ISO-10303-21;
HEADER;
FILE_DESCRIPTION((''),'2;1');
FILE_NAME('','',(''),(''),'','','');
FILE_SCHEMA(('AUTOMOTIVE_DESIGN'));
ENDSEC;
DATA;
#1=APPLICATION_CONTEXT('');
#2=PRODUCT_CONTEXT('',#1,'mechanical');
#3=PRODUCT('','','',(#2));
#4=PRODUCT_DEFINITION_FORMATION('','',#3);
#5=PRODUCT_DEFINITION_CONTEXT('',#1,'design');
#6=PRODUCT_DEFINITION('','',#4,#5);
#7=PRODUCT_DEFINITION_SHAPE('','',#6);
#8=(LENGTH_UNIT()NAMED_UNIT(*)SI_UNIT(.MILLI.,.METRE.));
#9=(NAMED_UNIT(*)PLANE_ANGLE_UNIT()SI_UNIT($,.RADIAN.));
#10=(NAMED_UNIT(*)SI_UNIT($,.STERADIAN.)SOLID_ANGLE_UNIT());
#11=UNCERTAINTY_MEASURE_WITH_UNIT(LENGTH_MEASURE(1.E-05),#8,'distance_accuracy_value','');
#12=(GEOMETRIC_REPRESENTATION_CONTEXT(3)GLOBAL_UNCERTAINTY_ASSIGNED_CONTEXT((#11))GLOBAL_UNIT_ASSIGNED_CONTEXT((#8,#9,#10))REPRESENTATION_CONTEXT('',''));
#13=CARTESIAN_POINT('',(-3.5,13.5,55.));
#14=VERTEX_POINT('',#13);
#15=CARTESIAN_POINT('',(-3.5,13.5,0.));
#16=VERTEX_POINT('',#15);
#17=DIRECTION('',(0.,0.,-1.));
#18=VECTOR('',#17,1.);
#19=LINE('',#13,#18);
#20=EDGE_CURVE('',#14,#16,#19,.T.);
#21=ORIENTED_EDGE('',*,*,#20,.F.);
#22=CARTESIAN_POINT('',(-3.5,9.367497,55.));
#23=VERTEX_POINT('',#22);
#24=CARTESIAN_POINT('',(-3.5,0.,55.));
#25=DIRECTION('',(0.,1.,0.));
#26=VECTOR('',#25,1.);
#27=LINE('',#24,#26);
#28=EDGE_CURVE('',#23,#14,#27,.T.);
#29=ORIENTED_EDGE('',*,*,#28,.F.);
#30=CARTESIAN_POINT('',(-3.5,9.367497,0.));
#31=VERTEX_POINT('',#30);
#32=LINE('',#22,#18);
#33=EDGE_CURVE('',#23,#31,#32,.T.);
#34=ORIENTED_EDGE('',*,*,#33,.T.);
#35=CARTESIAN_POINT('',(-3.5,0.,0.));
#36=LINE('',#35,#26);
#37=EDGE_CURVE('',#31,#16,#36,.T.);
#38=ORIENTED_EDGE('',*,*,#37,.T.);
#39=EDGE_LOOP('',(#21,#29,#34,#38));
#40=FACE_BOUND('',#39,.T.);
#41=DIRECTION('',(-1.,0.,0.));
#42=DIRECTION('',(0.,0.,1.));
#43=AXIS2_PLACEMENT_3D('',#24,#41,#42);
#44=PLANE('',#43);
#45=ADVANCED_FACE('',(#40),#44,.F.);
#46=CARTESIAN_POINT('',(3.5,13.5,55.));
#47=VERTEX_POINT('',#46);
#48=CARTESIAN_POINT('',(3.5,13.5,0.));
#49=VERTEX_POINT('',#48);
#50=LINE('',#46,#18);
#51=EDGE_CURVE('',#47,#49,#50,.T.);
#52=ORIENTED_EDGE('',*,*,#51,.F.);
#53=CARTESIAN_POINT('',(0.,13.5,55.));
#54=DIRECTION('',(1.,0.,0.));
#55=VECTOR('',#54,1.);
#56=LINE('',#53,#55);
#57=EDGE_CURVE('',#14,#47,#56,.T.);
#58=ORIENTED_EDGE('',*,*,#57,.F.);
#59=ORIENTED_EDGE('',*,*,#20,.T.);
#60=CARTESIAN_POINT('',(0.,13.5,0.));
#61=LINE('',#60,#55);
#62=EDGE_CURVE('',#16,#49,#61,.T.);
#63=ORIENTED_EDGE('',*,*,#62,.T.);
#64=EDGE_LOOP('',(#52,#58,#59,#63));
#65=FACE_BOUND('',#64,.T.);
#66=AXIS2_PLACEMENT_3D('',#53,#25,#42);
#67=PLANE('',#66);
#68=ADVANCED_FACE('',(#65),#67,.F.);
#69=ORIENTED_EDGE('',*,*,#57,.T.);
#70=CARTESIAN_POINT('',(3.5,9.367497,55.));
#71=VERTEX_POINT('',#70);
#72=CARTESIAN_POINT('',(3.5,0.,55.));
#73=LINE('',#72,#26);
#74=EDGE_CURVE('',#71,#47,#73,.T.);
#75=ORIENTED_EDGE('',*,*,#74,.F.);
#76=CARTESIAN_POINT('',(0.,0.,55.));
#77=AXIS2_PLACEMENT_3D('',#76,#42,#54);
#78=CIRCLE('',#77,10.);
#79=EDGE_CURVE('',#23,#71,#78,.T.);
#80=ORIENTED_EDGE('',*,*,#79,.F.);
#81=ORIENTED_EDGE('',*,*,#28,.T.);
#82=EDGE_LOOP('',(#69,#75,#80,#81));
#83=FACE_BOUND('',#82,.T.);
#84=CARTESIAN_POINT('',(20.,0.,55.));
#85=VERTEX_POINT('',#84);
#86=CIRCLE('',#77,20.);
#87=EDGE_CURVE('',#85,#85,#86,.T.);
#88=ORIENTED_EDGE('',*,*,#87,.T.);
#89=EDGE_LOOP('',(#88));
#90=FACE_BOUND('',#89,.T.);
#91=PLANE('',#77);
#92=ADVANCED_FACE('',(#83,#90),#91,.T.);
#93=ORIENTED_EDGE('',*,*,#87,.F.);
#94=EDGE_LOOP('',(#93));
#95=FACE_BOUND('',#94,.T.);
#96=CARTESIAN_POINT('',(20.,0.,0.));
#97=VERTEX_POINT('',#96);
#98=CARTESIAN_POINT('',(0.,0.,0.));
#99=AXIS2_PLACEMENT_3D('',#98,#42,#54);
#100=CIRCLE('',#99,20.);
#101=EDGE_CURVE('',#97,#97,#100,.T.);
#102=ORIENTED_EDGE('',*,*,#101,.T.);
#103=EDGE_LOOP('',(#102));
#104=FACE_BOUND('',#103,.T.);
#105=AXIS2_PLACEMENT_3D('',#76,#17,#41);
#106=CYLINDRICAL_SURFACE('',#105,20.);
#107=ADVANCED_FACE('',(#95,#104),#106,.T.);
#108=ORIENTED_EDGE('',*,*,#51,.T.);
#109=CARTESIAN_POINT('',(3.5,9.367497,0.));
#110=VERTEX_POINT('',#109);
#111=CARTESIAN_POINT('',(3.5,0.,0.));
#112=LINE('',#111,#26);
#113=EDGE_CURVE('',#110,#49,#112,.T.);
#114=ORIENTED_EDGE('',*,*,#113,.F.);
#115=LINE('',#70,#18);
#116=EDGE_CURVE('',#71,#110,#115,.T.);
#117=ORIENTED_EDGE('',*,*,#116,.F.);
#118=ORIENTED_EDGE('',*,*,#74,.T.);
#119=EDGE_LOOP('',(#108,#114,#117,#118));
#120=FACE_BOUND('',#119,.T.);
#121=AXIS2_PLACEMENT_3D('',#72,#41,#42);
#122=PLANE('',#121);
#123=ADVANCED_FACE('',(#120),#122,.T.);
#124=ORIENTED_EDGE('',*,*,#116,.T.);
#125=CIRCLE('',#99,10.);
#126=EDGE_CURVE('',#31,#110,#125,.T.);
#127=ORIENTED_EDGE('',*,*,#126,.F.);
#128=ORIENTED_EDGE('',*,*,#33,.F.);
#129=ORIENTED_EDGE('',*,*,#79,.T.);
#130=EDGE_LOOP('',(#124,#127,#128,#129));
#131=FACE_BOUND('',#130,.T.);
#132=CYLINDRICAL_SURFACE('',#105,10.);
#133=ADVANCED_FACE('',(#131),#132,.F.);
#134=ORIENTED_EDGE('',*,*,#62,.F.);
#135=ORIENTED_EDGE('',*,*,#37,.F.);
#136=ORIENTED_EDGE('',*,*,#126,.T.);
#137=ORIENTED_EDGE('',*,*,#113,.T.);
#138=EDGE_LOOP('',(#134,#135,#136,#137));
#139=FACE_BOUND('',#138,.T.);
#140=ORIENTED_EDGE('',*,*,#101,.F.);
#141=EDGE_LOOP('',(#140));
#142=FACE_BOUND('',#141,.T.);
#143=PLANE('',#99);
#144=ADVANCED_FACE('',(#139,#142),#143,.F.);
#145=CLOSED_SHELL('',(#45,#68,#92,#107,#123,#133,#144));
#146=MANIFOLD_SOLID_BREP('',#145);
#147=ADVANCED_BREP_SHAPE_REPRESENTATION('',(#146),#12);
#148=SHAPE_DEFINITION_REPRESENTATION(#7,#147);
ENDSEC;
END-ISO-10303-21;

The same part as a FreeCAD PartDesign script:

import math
import FreeCAD as App
import Part
import Sketcher
from FreeCAD import Vector

doc = App.newDocument("Part")
params = doc.addObject("Spreadsheet::Sheet", "Params")
for row, (alias, value) in enumerate([
    ("sketch1_diameter", "40 mm"),
    ("sketch1_radius", "10 mm"),
    ("sketch1_width", "7 mm"),
    ("pad1_length", "55 mm"),
], start=1):
    params.set(f"A{row}", alias)
    params.set(f"B{row}", "=" + value)
    params.setAlias(f"B{row}", alias)

body = doc.addObject("PartDesign::Body", "Body")

# Sketch on XY plane
sketch1 = body.newObject("Sketcher::SketchObject", "Sketch")
sketch1.AttachmentSupport = (doc.getObject("XY_Plane"), [""])
sketch1.MapMode = "FlatFace"
sketch1.addGeometry([
    Part.Circle(Vector(0, 0, 0), Vector(0, 0, 1), 20),  # 0
    Part.ArcOfCircle(Part.Circle(Vector(0, 0, 0), Vector(0, 0, 1), 10), math.radians(0), math.radians(70)),  # 1
    Part.ArcOfCircle(Part.Circle(Vector(0, 0, 0), Vector(0, 0, 1), 10), math.radians(110), math.radians(360)),  # 2
    Part.LineSegment(Vector(-3.5, 9.4, 0), Vector(-3.5, 13.5, 0)),  # 3
    Part.LineSegment(Vector(-3.5, 13.5, 0), Vector(3.5, 13.5, 0)),  # 4
    Part.LineSegment(Vector(3.5, 13.5, 0), Vector(3.5, 9.4, 0)),  # 5
], False)
sketch1.addConstraint([
    Sketcher.Constraint("Tangent", 1, 1, 2, 2),
    Sketcher.Constraint("Coincident", 2, 1, 3, 1),
    Sketcher.Constraint("Coincident", 3, 2, 4, 1),
    Sketcher.Constraint("Coincident", 4, 2, 5, 1),
    Sketcher.Constraint("Coincident", 5, 2, 1, 2),
    Sketcher.Constraint("Vertical", 3),
    Sketcher.Constraint("Horizontal", 4),
    Sketcher.Constraint("Vertical", 5),
    Sketcher.Constraint("Coincident", 0, 3, -1, 1),
    Sketcher.Constraint("Coincident", 1, 3, -1, 1),
    Sketcher.Constraint("Equal", 1, 2),
    Sketcher.Constraint("PointOnObject", 1, 1, -1),
    Sketcher.Constraint("Horizontal", 2, 1, 5, 2),
    Sketcher.Constraint("Diameter", 0, 40.0),
    Sketcher.Constraint("Radius", 1, 10.0),
    Sketcher.Constraint("DistanceX", 4, 1, 4, 2, 7.0),
    Sketcher.Constraint("DistanceY", -1, 1, 3, 2, 13.5),
])
sketch1.setExpression("Constraints[13]", "Params.sketch1_diameter")
sketch1.setExpression("Constraints[14]", "Params.sketch1_radius")
sketch1.setExpression("Constraints[15]", "Params.sketch1_width")
pad1 = body.newObject("PartDesign::Pad", "Pad")
pad1.Profile = sketch1
pad1.setExpression("Length", "Params.pad1_length")

doc.recompute()
